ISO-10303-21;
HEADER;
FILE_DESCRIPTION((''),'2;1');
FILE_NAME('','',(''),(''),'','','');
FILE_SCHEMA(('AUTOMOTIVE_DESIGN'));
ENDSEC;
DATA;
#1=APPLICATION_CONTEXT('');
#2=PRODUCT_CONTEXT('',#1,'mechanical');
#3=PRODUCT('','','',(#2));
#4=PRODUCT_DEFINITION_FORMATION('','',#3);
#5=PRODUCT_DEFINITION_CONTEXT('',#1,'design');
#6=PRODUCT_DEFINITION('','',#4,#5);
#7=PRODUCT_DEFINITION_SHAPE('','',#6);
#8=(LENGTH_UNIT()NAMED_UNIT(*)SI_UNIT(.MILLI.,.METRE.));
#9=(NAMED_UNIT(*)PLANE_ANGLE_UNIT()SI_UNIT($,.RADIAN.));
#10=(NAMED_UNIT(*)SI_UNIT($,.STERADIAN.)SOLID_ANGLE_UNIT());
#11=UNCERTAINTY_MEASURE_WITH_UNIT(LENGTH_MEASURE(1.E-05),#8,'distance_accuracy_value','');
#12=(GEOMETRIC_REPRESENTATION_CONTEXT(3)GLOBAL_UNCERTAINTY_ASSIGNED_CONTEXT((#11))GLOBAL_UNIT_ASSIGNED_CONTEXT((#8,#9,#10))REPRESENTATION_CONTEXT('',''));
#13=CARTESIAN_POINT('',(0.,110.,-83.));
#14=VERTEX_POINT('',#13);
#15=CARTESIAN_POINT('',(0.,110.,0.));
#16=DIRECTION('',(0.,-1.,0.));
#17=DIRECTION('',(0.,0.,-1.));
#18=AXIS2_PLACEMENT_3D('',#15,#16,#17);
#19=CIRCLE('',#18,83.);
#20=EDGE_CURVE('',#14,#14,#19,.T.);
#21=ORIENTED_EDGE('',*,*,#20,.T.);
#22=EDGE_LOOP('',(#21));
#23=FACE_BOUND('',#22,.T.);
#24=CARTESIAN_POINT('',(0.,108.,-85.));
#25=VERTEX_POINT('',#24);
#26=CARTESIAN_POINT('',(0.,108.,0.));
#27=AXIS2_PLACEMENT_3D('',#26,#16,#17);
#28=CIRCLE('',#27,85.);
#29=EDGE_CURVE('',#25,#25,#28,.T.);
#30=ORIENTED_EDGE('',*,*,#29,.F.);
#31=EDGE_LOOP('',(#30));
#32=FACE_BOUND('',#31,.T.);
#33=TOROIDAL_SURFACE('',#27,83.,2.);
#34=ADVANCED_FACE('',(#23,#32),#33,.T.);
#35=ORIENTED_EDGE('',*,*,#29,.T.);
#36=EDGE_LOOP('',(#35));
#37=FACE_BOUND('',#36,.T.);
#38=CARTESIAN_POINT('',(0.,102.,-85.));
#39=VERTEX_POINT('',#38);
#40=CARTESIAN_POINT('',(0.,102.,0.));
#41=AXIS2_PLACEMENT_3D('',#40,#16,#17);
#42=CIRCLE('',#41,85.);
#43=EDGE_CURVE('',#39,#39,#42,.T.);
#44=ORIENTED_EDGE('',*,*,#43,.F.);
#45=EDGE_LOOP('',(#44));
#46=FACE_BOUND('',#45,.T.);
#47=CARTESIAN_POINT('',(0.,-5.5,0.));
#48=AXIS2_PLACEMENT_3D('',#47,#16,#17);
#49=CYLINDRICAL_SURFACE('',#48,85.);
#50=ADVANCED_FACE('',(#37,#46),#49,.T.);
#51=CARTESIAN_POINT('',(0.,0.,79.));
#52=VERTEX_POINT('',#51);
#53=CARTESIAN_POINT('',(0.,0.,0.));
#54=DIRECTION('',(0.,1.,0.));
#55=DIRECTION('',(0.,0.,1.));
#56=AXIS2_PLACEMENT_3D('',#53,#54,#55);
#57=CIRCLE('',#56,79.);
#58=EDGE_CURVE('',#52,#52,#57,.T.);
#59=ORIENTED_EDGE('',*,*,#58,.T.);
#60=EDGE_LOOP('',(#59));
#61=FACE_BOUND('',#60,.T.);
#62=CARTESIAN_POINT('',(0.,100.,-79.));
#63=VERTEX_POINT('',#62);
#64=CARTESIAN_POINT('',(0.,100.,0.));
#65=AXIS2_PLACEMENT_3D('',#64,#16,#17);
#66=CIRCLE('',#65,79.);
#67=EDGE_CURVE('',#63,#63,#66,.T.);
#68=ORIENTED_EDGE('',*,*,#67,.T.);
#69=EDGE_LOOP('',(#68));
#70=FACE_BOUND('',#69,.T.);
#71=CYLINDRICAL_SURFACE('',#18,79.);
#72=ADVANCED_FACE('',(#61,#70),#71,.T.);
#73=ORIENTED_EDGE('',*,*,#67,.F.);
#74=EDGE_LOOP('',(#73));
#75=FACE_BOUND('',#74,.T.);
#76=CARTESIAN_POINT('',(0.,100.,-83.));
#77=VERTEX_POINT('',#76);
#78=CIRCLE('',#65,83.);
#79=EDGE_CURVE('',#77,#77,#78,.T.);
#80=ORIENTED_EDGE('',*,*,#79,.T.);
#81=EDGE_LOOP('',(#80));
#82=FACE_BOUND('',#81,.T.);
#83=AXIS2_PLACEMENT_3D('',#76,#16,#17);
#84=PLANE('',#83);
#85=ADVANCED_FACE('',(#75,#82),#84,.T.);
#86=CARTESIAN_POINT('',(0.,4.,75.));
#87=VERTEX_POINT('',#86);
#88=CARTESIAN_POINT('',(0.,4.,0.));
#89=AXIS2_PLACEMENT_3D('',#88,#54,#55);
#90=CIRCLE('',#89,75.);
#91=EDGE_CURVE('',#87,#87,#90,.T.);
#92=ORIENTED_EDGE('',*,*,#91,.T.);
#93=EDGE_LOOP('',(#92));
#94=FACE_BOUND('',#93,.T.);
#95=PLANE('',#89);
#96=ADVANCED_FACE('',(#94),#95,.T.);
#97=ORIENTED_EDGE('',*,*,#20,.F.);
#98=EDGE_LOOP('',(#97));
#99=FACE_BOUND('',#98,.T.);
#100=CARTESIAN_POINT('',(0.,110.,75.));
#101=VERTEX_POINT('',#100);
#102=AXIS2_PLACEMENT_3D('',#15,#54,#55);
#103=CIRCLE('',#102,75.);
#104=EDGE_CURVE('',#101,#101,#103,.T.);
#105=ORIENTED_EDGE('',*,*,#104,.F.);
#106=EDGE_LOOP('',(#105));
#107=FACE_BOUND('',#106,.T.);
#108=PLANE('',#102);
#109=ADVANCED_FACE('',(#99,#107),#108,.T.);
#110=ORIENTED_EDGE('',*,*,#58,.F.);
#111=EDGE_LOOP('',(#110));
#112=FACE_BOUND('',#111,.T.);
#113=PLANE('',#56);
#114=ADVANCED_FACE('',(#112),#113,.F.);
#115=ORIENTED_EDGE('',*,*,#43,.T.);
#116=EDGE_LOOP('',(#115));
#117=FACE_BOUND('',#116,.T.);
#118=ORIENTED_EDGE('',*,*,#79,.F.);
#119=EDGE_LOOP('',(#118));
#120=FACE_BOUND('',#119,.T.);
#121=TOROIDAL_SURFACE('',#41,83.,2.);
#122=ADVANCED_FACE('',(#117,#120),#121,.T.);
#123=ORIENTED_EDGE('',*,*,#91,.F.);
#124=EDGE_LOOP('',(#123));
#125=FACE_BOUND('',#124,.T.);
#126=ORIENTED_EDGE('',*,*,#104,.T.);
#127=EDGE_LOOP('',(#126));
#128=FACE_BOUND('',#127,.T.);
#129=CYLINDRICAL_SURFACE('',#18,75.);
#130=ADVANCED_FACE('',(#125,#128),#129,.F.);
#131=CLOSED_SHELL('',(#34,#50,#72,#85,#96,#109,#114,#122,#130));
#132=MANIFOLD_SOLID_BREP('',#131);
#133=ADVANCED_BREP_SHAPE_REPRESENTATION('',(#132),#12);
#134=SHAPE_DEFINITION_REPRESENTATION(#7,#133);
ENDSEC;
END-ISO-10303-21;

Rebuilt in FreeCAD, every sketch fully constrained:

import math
import FreeCAD as App
import Part
import Sketcher
Q = App.Units.Quantity


def faces_at(feature, points):
    """Names of the faces that lie closest to the given points."""
    faces = feature.Shape.Faces
    near = lambda p: min(range(len(faces)), key=lambda i: faces[i].distToShape(Part.Vertex(*p))[0])
    return sorted({f"Face{near(p) + 1}" for p in points})

doc = App.newDocument("Part")
params = doc.addObject("Spreadsheet::Sheet", "Params")
for row, (alias, value) in enumerate([
    ("sketch1_diameter", "158 mm"),
    ("pad1_length", "110 mm"),
    ("thickness_wall", "4 mm"),
    ("sketch2_radius", "2 mm"),
    ("sketch2_width", "10 mm"),
    ("sketch2_height", "4 mm"),
    ("revolution_angle", "360 deg"),
], start=1):
    params.set(f"A{row}", alias)
    params.set(f"B{row}", "=" + value)
    params.setAlias(f"B{row}", alias)

body = doc.addObject("PartDesign::Body", "Body")

# Sketch on XZ plane
sketch1 = body.newObject("Sketcher::SketchObject", "Sketch")
sketch1.AttachmentSupport = (doc.getObject("XZ_Plane"), [""])
sketch1.MapMode = "FlatFace"
sketch1.addGeometry(Part.Circle(App.Vector(0, 0, 0), App.Vector(0, 0, 1), 79), False)
sketch1.addConstraint(Sketcher.Constraint("Coincident", 0, 3, -1, 1))
sketch1.addConstraint(Sketcher.Constraint("Diameter", 0, Q("158 mm")))
sketch1.setExpression("Constraints[1]", "Params.sketch1_diameter")
pad1 = body.newObject("PartDesign::Pad", "Pad")
pad1.Profile = sketch1
pad1.setExpression("Length", "Params.pad1_length")
pad1.Reversed = True
doc.recompute()

thickness = body.newObject("PartDesign::Thickness", "Thickness")
thickness.Base = (pad1, faces_at(pad1, [(0, 110, 0)]))
thickness.setExpression("Value", "Params.thickness_wall")
thickness.Reversed = True
thickness.Join = "Intersection"

# Sketch on YZ plane
sketch2 = body.newObject("Sketcher::SketchObject", "Sketch001")
sketch2.AttachmentSupport = (doc.getObject("YZ_Plane"), [""])
sketch2.MapMode = "FlatFace"
sketch2.addGeometry(Part.LineSegment(App.Vector(110, -83, 0), App.Vector(110, -79, 0)), False)
sketch2.addGeometry(Part.LineSegment(App.Vector(110, -79, 0), App.Vector(100, -79, 0)), False)
sketch2.addGeometry(Part.LineSegment(App.Vector(100, -79, 0), App.Vector(100, -83, 0)), False)
sketch2.addGeometry(Part.ArcOfCircle(Part.Circle(App.Vector(102, -83, 0), App.Vector(0, 0, 1), 2), math.radians(-180), math.radians(-90)), False)
sketch2.addGeometry(Part.LineSegment(App.Vector(102, -85, 0), App.Vector(108, -85, 0)), False)
sketch2.addGeometry(Part.ArcOfCircle(Part.Circle(App.Vector(108, -83, 0), App.Vector(0, 0, 1), 2), math.radians(-90), math.radians(0)), False)
sketch2.addConstraint(Sketcher.Constraint("Coincident", 0, 2, 1, 1))
sketch2.addConstraint(Sketcher.Constraint("Coincident", 1, 2, 2, 1))
sketch2.addConstraint(Sketcher.Constraint("Tangent", 2, 2, 3, 1))
sketch2.addConstraint(Sketcher.Constraint("Tangent", 3, 2, 4, 1))
sketch2.addConstraint(Sketcher.Constraint("Tangent", 4, 2, 5, 1))
sketch2.addConstraint(Sketcher.Constraint("Tangent", 5, 2, 0, 1))
sketch2.addConstraint(Sketcher.Constraint("Vertical", 0))
sketch2.addConstraint(Sketcher.Constraint("Horizontal", 1))
sketch2.addConstraint(Sketcher.Constraint("Vertical", 2))
sketch2.addConstraint(Sketcher.Constraint("Horizontal", 4))
sketch2.addConstraint(Sketcher.Constraint("Equal", 3, 5))
sketch2.addConstraint(Sketcher.Constraint("Radius", 3, Q("2 mm")))
sketch2.addConstraint(Sketcher.Constraint("DistanceX", 1, 2, 1, 1, Q("10 mm")))
sketch2.addConstraint(Sketcher.Constraint("DistanceY", 0, 1, 0, 2, Q("4 mm")))
sketch2.addConstraint(Sketcher.Constraint("DistanceX", -1, 1, 3, 3, Q("102 mm")))
sketch2.addConstraint(Sketcher.Constraint("DistanceY", 3, 3, -1, 1, Q("83 mm")))
sketch2.setExpression("Constraints[11]", "Params.sketch2_radius")
sketch2.setExpression("Constraints[12]", "Params.sketch2_width")
sketch2.setExpression("Constraints[13]", "Params.sketch2_height")
revolution = body.newObject("PartDesign::Revolution", "Revolution")
revolution.Profile = sketch2
revolution.ReferenceAxis = (sketch2, ["H_Axis"])
revolution.setExpression("Angle", "Params.revolution_angle")

doc.recompute()
